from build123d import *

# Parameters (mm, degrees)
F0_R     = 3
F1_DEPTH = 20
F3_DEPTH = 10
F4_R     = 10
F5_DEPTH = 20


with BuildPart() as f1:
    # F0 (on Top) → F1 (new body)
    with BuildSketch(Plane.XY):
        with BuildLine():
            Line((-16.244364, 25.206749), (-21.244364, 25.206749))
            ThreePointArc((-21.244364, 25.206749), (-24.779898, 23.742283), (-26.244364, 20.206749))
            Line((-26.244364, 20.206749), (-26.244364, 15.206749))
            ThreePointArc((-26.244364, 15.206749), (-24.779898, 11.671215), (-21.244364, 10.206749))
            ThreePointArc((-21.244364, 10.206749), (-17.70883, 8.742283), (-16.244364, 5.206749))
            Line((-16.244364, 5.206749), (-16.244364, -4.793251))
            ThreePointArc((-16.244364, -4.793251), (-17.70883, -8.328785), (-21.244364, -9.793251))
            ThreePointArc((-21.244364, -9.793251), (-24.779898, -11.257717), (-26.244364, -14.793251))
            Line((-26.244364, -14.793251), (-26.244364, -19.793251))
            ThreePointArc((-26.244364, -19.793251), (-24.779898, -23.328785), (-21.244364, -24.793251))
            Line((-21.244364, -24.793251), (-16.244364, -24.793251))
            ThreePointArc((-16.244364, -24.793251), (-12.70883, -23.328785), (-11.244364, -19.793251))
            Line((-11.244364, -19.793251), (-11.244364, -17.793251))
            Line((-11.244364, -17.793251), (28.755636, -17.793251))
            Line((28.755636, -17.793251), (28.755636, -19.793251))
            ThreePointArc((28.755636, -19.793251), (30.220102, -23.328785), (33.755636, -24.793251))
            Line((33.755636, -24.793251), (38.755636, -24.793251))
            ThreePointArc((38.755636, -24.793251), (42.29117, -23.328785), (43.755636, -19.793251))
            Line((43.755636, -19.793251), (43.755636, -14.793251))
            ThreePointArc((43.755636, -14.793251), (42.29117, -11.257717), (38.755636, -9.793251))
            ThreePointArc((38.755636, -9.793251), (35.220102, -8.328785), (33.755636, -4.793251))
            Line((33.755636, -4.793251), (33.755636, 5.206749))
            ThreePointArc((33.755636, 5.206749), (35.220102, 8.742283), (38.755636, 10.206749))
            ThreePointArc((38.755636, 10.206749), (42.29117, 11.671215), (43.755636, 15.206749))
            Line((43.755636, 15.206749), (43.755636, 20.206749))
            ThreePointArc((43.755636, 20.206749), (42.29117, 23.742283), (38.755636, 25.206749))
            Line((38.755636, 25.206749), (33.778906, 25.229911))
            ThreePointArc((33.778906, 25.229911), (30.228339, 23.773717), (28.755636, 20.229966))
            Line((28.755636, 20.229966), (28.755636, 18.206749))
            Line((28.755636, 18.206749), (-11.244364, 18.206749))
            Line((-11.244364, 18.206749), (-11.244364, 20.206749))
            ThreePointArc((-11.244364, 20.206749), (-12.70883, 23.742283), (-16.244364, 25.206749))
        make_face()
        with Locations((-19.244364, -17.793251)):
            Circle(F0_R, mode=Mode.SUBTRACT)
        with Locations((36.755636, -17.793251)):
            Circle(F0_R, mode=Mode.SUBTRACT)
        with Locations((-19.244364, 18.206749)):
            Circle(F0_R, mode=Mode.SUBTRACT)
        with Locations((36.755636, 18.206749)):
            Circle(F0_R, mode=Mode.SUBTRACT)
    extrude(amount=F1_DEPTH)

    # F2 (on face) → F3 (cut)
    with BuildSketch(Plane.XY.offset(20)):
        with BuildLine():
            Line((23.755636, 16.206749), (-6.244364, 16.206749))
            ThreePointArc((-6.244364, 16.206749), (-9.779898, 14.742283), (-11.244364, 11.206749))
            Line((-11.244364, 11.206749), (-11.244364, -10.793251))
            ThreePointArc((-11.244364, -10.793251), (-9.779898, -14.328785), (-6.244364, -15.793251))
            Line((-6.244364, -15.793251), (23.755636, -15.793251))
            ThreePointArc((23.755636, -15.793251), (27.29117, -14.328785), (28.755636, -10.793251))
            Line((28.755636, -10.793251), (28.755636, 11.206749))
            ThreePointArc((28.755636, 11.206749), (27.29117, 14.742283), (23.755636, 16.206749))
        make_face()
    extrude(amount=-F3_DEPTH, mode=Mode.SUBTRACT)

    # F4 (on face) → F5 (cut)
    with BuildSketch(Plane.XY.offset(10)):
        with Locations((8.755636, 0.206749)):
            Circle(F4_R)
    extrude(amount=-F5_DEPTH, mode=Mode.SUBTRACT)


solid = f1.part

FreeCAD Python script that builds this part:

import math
import FreeCAD as App
import Part
import Sketcher
from FreeCAD import Vector

doc = App.newDocument("Part")
body = doc.addObject("PartDesign::Body", "Body")

sketch1 = body.newObject("Sketcher::SketchObject", "Sketch")
sketch1.AttachmentSupport = (doc.getObject("XY_Plane"), [""])
sketch1.MapMode = "FlatFace"
sketch1.addGeometry(Part.LineSegment(Vector(-16.2, 25.2, 0), Vector(-21.2, 25.2, 0)), False)
sketch1.addGeometry(Part.ArcOfCircle(Part.Circle(Vector(-21.2, 20.2, 0), Vector(0, 0, 1), 5), math.radians(90), math.radians(180)), False)
sketch1.addGeometry(Part.LineSegment(Vector(-26.2, 20.2, 0), Vector(-26.2, 15.2, 0)), False)
sketch1.addGeometry(Part.ArcOfCircle(Part.Circle(Vector(-21.2, 15.2, 0), Vector(0, 0, 1), 5), math.radians(180), math.radians(270)), False)
sketch1.addGeometry(Part.ArcOfCircle(Part.Circle(Vector(-21.2, 5.2, 0), Vector(0, 0, 1), 5), math.radians(0), math.radians(90)), False)
sketch1.addGeometry(Part.LineSegment(Vector(-16.2, 5.2, 0), Vector(-16.2, -4.8, 0)), False)
sketch1.addGeometry(Part.ArcOfCircle(Part.Circle(Vector(-21.2, -4.8, 0), Vector(0, 0, 1), 5), math.radians(-90), math.radians(0)), False)
sketch1.addGeometry(Part.ArcOfCircle(Part.Circle(Vector(-21.2, -14.8, 0), Vector(0, 0, 1), 5), math.radians(90), math.radians(180)), False)
sketch1.addGeometry(Part.LineSegment(Vector(-26.2, -14.8, 0), Vector(-26.2, -19.8, 0)), False)
sketch1.addGeometry(Part.ArcOfCircle(Part.Circle(Vector(-21.2, -19.8, 0), Vector(0, 0, 1), 5), math.radians(180), math.radians(270)), False)
sketch1.addGeometry(Part.LineSegment(Vector(-21.2, -24.8, 0), Vector(-16.2, -24.8, 0)), False)
sketch1.addGeometry(Part.ArcOfCircle(Part.Circle(Vector(-16.2, -19.8, 0), Vector(0, 0, 1), 5), math.radians(-90), math.radians(0)), False)
sketch1.addGeometry(Part.LineSegment(Vector(-11.2, -19.8, 0), Vector(-11.2, -17.8, 0)), False)
sketch1.addGeometry(Part.LineSegment(Vector(-11.2, -17.8, 0), Vector(28.8, -17.8, 0)), False)
sketch1.addGeometry(Part.LineSegment(Vector(28.8, -17.8, 0), Vector(28.8, -19.8, 0)), False)
sketch1.addGeometry(Part.ArcOfCircle(Part.Circle(Vector(33.8, -19.8, 0), Vector(0, 0, 1), 5), math.radians(180), math.radians(270)), False)
sketch1.addGeometry(Part.LineSegment(Vector(33.8, -24.8, 0), Vector(38.8, -24.8, 0)), False)
sketch1.addGeometry(Part.ArcOfCircle(Part.Circle(Vector(38.8, -19.8, 0), Vector(0, 0, 1), 5), math.radians(-90), math.radians(0)), False)
sketch1.addGeometry(Part.LineSegment(Vector(43.8, -19.8, 0), Vector(43.8, -14.8, 0)), False)
sketch1.addGeometry(Part.ArcOfCircle(Part.Circle(Vector(38.8, -14.8, 0), Vector(0, 0, 1), 5), math.radians(0), math.radians(90)), False)
sketch1.addGeometry(Part.ArcOfCircle(Part.Circle(Vector(38.8, -4.8, 0), Vector(0, 0, 1), 5), math.radians(180), math.radians(270)), False)
sketch1.addGeometry(Part.LineSegment(Vector(33.8, -4.8, 0), Vector(33.8, 5.2, 0)), False)
sketch1.addGeometry(Part.ArcOfCircle(Part.Circle(Vector(38.8, 5.2, 0), Vector(0, 0, 1), 5), math.radians(90), math.radians(180)), False)
sketch1.addGeometry(Part.ArcOfCircle(Part.Circle(Vector(38.8, 15.2, 0), Vector(0, 0, 1), 5), math.radians(-90), math.radians(0)), False)
sketch1.addGeometry(Part.LineSegment(Vector(43.8, 15.2, 0), Vector(43.8, 20.2, 0)), False)
sketch1.addGeometry(Part.ArcOfCircle(Part.Circle(Vector(38.8, 20.2, 0), Vector(0, 0, 1), 5), math.radians(0), math.radians(90)), False)
sketch1.addGeometry(Part.LineSegment(Vector(38.8, 25.2, 0), Vector(33.8, 25.2, 0)), False)
sketch1.addGeometry(Part.ArcOfCircle(Part.Circle(Vector(33.8, 20.2, 0), Vector(0, 0, 1), 5), math.radians(90), math.radians(180)), False)
sketch1.addGeometry(Part.LineSegment(Vector(28.8, 20.2, 0), Vector(28.8, 18.2, 0)), False)
sketch1.addGeometry(Part.LineSegment(Vector(28.8, 18.2, 0), Vector(-11.2, 18.2, 0)), False)
sketch1.addGeometry(Part.LineSegment(Vector(-11.2, 18.2, 0), Vector(-11.2, 20.2, 0)), False)
sketch1.addGeometry(Part.ArcOfCircle(Part.Circle(Vector(-16.2, 20.2, 0), Vector(0, 0, 1), 5), math.radians(0), math.radians(90)), False)
sketch1.addGeometry(Part.Circle(Vector(-19.2, -17.8, 0), Vector(0, 0, 1), 3), False)
sketch1.addGeometry(Part.Circle(Vector(36.8, -17.8, 0), Vector(0, 0, 1), 3), False)
sketch1.addGeometry(Part.Circle(Vector(-19.2, 18.2, 0), Vector(0, 0, 1), 3), False)
sketch1.addGeometry(Part.Circle(Vector(36.8, 18.2, 0), Vector(0, 0, 1), 3), False)
sketch1.addConstraint(Sketcher.Constraint("Tangent", 0, 2, 1, 1))
sketch1.addConstraint(Sketcher.Constraint("Tangent", 1, 2, 2, 1))
sketch1.addConstraint(Sketcher.Constraint("Tangent", 2, 2, 3, 1))
sketch1.addConstraint(Sketcher.Constraint("Tangent", 3, 2, 4, 2))
sketch1.addConstraint(Sketcher.Constraint("Tangent", 4, 1, 5, 1))
sketch1.addConstraint(Sketcher.Constraint("Tangent", 5, 2, 6, 2))
sketch1.addConstraint(Sketcher.Constraint("Tangent", 6, 1, 7, 1))
sketch1.addConstraint(Sketcher.Constraint("Tangent", 7, 2, 8, 1))
sketch1.addConstraint(Sketcher.Constraint("Tangent", 8, 2, 9, 1))
sketch1.addConstraint(Sketcher.Constraint("Tangent", 9, 2, 10, 1))
sketch1.addConstraint(Sketcher.Constraint("Tangent", 10, 2, 11, 1))
sketch1.addConstraint(Sketcher.Constraint("Tangent", 11, 2, 12, 1))
sketch1.addConstraint(Sketcher.Constraint("Coincident", 12, 2, 13, 1))
sketch1.addConstraint(Sketcher.Constraint("Coincident", 13, 2, 14, 1))
sketch1.addConstraint(Sketcher.Constraint("Tangent", 14, 2, 15, 1))
sketch1.addConstraint(Sketcher.Constraint("Tangent", 15, 2, 16, 1))
sketch1.addConstraint(Sketcher.Constraint("Tangent", 16, 2, 17, 1))
sketch1.addConstraint(Sketcher.Constraint("Tangent", 17, 2, 18, 1))
sketch1.addConstraint(Sketcher.Constraint("Tangent", 18, 2, 19, 1))
sketch1.addConstraint(Sketcher.Constraint("Tangent", 19, 2, 20, 2))
sketch1.addConstraint(Sketcher.Constraint("Tangent", 20, 1, 21, 1))
sketch1.addConstraint(Sketcher.Constraint("Tangent", 21, 2, 22, 2))
sketch1.addConstraint(Sketcher.Constraint("Tangent", 22, 1, 23, 1))
sketch1.addConstraint(Sketcher.Constraint("Tangent", 23, 2, 24, 1))
sketch1.addConstraint(Sketcher.Constraint("Tangent", 24, 2, 25, 1))
sketch1.addConstraint(Sketcher.Constraint("Coincident", 25, 2, 26, 1))
sketch1.addConstraint(Sketcher.Constraint("Tangent", 26, 2, 27, 1))
sketch1.addConstraint(Sketcher.Constraint("Tangent", 27, 2, 28, 1))
sketch1.addConstraint(Sketcher.Constraint("Coincident", 28, 2, 29, 1))
sketch1.addConstraint(Sketcher.Constraint("Coincident", 29, 2, 30, 1))
sketch1.addConstraint(Sketcher.Constraint("Tangent", 30, 2, 31, 1))
sketch1.addConstraint(Sketcher.Constraint("Tangent", 31, 2, 0, 1))
sketch1.addConstraint(Sketcher.Constraint("Horizontal", 0))
sketch1.addConstraint(Sketcher.Constraint("Vertical", 2))
sketch1.addConstraint(Sketcher.Constraint("Vertical", 5))
sketch1.addConstraint(Sketcher.Constraint("Vertical", 8))
sketch1.addConstraint(Sketcher.Constraint("Horizontal", 10))
sketch1.addConstraint(Sketcher.Constraint("Vertical", 12))
sketch1.addConstraint(Sketcher.Constraint("Horizontal", 13))
sketch1.addConstraint(Sketcher.Constraint("Vertical", 14))
sketch1.addConstraint(Sketcher.Constraint("Horizontal", 16))
sketch1.addConstraint(Sketcher.Constraint("Vertical", 18))
sketch1.addConstraint(Sketcher.Constraint("Vertical", 21))
sketch1.addConstraint(Sketcher.Constraint("Vertical", 24))
sketch1.addConstraint(Sketcher.Constraint("Vertical", 28))
sketch1.addConstraint(Sketcher.Constraint("Horizontal", 29))
sketch1.addConstraint(Sketcher.Constraint("Vertical", 30))
sketch1.addConstraint(Sketcher.Constraint("Equal", 1, 3))
sketch1.addConstraint(Sketcher.Constraint("Equal", 3, 4))
sketch1.addConstraint(Sketcher.Constraint("Equal", 4, 6))
sketch1.addConstraint(Sketcher.Constraint("Equal", 6, 7))
sketch1.addConstraint(Sketcher.Constraint("Equal", 7, 9))
sketch1.addConstraint(Sketcher.Constraint("Equal", 9, 11))
sketch1.addConstraint(Sketcher.Constraint("Equal", 11, 15))
sketch1.addConstraint(Sketcher.Constraint("Equal", 15, 17))
sketch1.addConstraint(Sketcher.Constraint("Equal", 17, 19))
sketch1.addConstraint(Sketcher.Constraint("Equal", 19, 20))
sketch1.addConstraint(Sketcher.Constraint("Equal", 20, 22))
sketch1.addConstraint(Sketcher.Constraint("Equal", 22, 23))
sketch1.addConstraint(Sketcher.Constraint("Equal", 23, 25))
sketch1.addConstraint(Sketcher.Constraint("Equal", 25, 27))
sketch1.addConstraint(Sketcher.Constraint("Equal", 27, 31))
sketch1.addConstraint(Sketcher.Constraint("Equal", 32, 33))
sketch1.addConstraint(Sketcher.Constraint("Equal", 33, 34))
sketch1.addConstraint(Sketcher.Constraint("Equal", 34, 35))
sketch1.addConstraint(Sketcher.Constraint("Horizontal", 11, 3, 15, 3))
sketch1.addConstraint(Sketcher.Constraint("Horizontal", 7, 3, 19, 3))
sketch1.addConstraint(Sketcher.Constraint("Horizontal", 4, 3, 22, 3))
sketch1.addConstraint(Sketcher.Constraint("Horizontal", 1, 3, 25, 3))
sketch1.addConstraint(Sketcher.Constraint("Horizontal", 32, 3, 33, 3))
sketch1.addConstraint(Sketcher.Constraint("Horizontal", 34, 3, 35, 3))
sketch1.addConstraint(Sketcher.Constraint("Horizontal", 33, 3, 12, 2))
sketch1.addConstraint(Sketcher.Constraint("Horizontal", 35, 3, 28, 2))
sketch1.addConstraint(Sketcher.Constraint("Vertical", 3, 3, 4, 3))
sketch1.addConstraint(Sketcher.Constraint("Vertical", 6, 3, 7, 3))
sketch1.addConstraint(Sketcher.Constraint("Vertical", 19, 3, 20, 3))
sketch1.addConstraint(Sketcher.Constraint("Vertical", 22, 3, 23, 3))
sketch1.addConstraint(Sketcher.Constraint("Vertical", 15, 3, 27, 3))
sketch1.addConstraint(Sketcher.Constraint("Vertical", 11, 3, 31, 3))
sketch1.addConstraint(Sketcher.Constraint("Vertical", 32, 3, 34, 3))
sketch1.addConstraint(Sketcher.Constraint("Vertical", 33, 3, 35, 3))
sketch1.addConstraint(Sketcher.Constraint("Vertical", 31, 3, 4, 1))
sketch1.addConstraint(Sketcher.Constraint("Vertical", 15, 2, 20, 1))
sketch1.addConstraint(Sketcher.Constraint("Vertical", 22, 1, 25, 2))
sketch1.addConstraint(Sketcher.Constraint("Equal", 16, 2))
sketch1.addConstraint(Sketcher.Constraint("Equal", 2, 8))
sketch1.addConstraint(Sketcher.Constraint("Equal", 14, 30))
sketch1.addConstraint(Sketcher.Constraint("Diameter", 32, 6.0))
sketch1.addConstraint(Sketcher.Constraint("Radius", 1, 5.0))
sketch1.addConstraint(Sketcher.Constraint("DistanceX", 13, 1, 13, 2, 40.0))
sketch1.addConstraint(Sketcher.Constraint("DistanceY", 5, 2, 5, 1, 10.0))
sketch1.addConstraint(Sketcher.Constraint("DistanceY", 12, 1, 12, 2, 2.0))
sketch1.addConstraint(Sketcher.Constraint("DistanceX", 9, 3, 32, 3, 2.0))
sketch1.addConstraint(Sketcher.Constraint("DistanceX", 33, 3, 17, 3, 2.0))
sketch1.addConstraint(Sketcher.Constraint("DistanceY", 28, 2, 28, 1, 2.023217))
sketch1.addConstraint(Sketcher.Constraint("DistanceY", -1, 1, 1, 3, 20.206749))
sketch1.addConstraint(Sketcher.Constraint("DistanceX", 1, 3, -1, 1, 21.244364))
pad1 = body.newObject("PartDesign::Pad", "Pad")
pad1.Profile = sketch1
pad1.Length = 20

sketch2 = body.newObject("Sketcher::SketchObject", "Sketch001")
sketch2.AttachmentSupport = (doc.getObject("XY_Plane"), [""])
sketch2.MapMode = "FlatFace"
sketch2.AttachmentOffset = App.Placement(Vector(0, 0, 20), App.Rotation())
sketch2.addGeometry(Part.LineSegment(Vector(23.8, 16.2, 0), Vector(-6.2, 16.2, 0)), False)
sketch2.addGeometry(Part.ArcOfCircle(Part.Circle(Vector(-6.2, 11.2, 0), Vector(0, 0, 1), 5), math.radians(90), math.radians(180)), False)
sketch2.addGeometry(Part.LineSegment(Vector(-11.2, 11.2, 0), Vector(-11.2, -10.8, 0)), False)
sketch2.addGeometry(Part.ArcOfCircle(Part.Circle(Vector(-6.2, -10.8, 0), Vector(0, 0, 1), 5), math.radians(180), math.radians(270)), False)
sketch2.addGeometry(Part.LineSegment(Vector(-6.2, -15.8, 0), Vector(23.8, -15.8, 0)), False)
sketch2.addGeometry(Part.ArcOfCircle(Part.Circle(Vector(23.8, -10.8, 0), Vector(0, 0, 1), 5), math.radians(-90), math.radians(0)), False)
sketch2.addGeometry(Part.LineSegment(Vector(28.8, -10.8, 0), Vector(28.8, 11.2, 0)), False)
sketch2.addGeometry(Part.ArcOfCircle(Part.Circle(Vector(23.8, 11.2, 0), Vector(0, 0, 1), 5), math.radians(0), math.radians(90)), False)
sketch2.addConstraint(Sketcher.Constraint("Tangent", 0, 2, 1, 1))
sketch2.addConstraint(Sketcher.Constraint("Tangent", 1, 2, 2, 1))
sketch2.addConstraint(Sketcher.Constraint("Tangent", 2, 2, 3, 1))
sketch2.addConstraint(Sketcher.Constraint("Tangent", 3, 2, 4, 1))
sketch2.addConstraint(Sketcher.Constraint("Tangent", 4, 2, 5, 1))
sketch2.addConstraint(Sketcher.Constraint("Tangent", 5, 2, 6, 1))
sketch2.addConstraint(Sketcher.Constraint("Tangent", 6, 2, 7, 1))
sketch2.addConstraint(Sketcher.Constraint("Tangent", 7, 2, 0, 1))
sketch2.addConstraint(Sketcher.Constraint("Horizontal", 0))
sketch2.addConstraint(Sketcher.Constraint("Vertical", 2))
sketch2.addConstraint(Sketcher.Constraint("Horizontal", 4))
sketch2.addConstraint(Sketcher.Constraint("Vertical", 6))
sketch2.addConstraint(Sketcher.Constraint("Equal", 1, 3))
sketch2.addConstraint(Sketcher.Constraint("Equal", 3, 5))
sketch2.addConstraint(Sketcher.Constraint("Equal", 5, 7))
sketch2.addConstraint(Sketcher.Constraint("Radius", 1, 5.0))
sketch2.addConstraint(Sketcher.Constraint("DistanceX", 0, 2, 0, 1, 30.0))
sketch2.addConstraint(Sketcher.Constraint("DistanceY", 2, 2, 2, 1, 22.0))
sketch2.addConstraint(Sketcher.Constraint("DistanceY", -1, 1, 1, 3, 11.206749))
sketch2.addConstraint(Sketcher.Constraint("DistanceX", 1, 3, -1, 1, 6.244364))
pocket1 = body.newObject("PartDesign::Pocket", "Pocket")
pocket1.Profile = sketch2
pocket1.Length = 10

sketch3 = body.newObject("Sketcher::SketchObject", "Sketch002")
sketch3.AttachmentSupport = (doc.getObject("XY_Plane"), [""])
sketch3.MapMode = "FlatFace"
sketch3.AttachmentOffset = App.Placement(Vector(0, 0, 10), App.Rotation())
sketch3.addGeometry(Part.Circle(Vector(9, 0, 0), Vector(0, 0, 1), 10), False)
sketch3.addConstraint(Sketcher.Constraint("Diameter", 0, 20.0))
sketch3.addConstraint(Sketcher.Constraint("DistanceY", -1, 1, 0, 3, 0.206749))
sketch3.addConstraint(Sketcher.Constraint("DistanceX", -1, 1, 0, 3, 8.755636))
pocket2 = body.newObject("PartDesign::Pocket", "Pocket001")
pocket2.Profile = sketch3
pocket2.Length = 20

doc.recompute()
